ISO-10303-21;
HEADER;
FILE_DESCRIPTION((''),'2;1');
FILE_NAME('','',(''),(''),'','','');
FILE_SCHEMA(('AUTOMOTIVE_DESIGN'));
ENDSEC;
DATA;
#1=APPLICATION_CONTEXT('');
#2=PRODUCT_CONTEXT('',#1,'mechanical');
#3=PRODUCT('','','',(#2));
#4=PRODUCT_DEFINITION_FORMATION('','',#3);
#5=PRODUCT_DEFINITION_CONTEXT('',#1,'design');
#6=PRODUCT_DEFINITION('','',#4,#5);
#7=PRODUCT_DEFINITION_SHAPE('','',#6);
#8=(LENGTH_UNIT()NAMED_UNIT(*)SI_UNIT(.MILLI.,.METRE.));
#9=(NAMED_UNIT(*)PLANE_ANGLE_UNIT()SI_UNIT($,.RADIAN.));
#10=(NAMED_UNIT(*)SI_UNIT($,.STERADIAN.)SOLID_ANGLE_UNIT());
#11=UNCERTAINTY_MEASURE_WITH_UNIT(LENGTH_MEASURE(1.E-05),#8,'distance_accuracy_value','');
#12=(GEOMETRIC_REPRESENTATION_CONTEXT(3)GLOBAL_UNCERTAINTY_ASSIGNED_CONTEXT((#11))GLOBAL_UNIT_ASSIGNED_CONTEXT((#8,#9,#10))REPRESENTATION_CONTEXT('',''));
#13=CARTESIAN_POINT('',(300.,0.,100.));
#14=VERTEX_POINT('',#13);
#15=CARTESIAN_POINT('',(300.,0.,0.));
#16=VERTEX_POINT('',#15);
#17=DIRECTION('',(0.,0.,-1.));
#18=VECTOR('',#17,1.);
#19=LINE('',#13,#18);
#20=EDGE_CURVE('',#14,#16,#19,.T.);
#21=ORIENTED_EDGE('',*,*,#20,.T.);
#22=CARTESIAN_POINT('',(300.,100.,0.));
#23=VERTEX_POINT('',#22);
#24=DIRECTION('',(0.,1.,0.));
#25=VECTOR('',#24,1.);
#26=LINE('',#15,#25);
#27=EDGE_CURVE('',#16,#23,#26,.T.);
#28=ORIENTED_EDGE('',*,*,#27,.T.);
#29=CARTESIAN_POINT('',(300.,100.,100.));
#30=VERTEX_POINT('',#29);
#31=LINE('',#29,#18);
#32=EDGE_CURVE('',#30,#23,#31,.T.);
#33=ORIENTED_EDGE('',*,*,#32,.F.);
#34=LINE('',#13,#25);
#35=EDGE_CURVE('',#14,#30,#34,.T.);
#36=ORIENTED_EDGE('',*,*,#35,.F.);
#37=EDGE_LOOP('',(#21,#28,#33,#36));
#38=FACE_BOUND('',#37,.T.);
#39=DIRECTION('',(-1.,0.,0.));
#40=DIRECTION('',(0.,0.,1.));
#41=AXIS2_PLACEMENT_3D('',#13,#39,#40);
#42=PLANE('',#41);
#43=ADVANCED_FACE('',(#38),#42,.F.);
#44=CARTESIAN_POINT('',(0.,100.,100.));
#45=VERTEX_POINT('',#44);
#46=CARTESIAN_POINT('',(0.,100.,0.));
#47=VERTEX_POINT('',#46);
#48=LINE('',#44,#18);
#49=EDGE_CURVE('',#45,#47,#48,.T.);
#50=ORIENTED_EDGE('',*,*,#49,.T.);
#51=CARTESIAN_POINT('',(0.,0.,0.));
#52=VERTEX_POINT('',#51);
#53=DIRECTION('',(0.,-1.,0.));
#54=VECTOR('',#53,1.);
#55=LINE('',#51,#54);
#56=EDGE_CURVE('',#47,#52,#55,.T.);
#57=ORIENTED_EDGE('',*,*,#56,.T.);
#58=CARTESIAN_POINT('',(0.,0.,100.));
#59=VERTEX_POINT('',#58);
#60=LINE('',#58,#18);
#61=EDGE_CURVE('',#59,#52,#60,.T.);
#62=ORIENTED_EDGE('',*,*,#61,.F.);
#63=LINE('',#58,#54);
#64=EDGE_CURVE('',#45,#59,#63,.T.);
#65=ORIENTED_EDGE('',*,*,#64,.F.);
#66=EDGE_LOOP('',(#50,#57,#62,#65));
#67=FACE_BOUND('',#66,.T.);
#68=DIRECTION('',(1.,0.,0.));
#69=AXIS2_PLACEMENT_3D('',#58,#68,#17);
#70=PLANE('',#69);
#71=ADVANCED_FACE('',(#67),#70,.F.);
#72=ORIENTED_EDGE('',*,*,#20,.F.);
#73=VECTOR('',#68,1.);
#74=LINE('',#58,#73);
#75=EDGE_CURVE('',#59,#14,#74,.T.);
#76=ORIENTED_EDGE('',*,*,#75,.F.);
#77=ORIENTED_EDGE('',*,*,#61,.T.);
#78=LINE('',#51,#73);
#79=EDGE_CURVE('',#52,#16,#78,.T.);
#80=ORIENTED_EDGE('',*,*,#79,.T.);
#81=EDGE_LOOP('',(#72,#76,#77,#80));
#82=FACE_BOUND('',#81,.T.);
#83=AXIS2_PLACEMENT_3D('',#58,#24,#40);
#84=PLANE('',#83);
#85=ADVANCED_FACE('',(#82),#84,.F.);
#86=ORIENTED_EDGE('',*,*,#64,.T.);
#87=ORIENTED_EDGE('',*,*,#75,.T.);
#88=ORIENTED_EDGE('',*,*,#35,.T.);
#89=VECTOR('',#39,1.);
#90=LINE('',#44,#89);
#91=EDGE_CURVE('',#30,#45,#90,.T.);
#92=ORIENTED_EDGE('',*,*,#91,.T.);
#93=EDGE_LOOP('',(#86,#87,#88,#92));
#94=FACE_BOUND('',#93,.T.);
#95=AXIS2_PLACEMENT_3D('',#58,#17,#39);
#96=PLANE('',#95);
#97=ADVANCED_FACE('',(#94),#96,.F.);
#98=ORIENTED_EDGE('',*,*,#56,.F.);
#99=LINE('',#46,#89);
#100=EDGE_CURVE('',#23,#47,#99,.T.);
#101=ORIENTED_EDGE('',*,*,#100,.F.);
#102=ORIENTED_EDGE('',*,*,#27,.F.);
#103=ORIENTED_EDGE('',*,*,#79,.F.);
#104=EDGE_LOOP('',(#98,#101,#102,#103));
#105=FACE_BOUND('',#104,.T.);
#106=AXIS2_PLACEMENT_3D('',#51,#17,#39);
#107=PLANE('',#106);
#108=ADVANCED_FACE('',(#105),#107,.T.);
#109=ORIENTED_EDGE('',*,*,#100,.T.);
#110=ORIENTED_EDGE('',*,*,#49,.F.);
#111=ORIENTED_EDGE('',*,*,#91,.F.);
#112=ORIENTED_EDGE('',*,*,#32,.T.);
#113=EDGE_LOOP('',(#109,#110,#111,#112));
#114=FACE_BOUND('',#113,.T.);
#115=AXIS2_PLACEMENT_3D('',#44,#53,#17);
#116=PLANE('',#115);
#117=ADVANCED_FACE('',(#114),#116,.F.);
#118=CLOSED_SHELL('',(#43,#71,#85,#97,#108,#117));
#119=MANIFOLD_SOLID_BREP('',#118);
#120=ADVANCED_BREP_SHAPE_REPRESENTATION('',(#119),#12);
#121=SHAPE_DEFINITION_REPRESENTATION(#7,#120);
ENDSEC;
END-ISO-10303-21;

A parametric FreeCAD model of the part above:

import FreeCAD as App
import Part
import Sketcher
from FreeCAD import Vector


def add_polygon(sketch, points):
    """Adds a closed chain of lines whose ends are joined by coincident constraints."""
    first, n = sketch.GeometryCount, len(points)
    for a, b in zip(points, points[1:] + points[:1]):
        sketch.addGeometry(Part.LineSegment(App.Vector(*a, 0), App.Vector(*b, 0)), False)
    for i in range(n):
        sketch.addConstraint(Sketcher.Constraint("Coincident", first + i, 2, first + (i + 1) % n, 1))

doc = App.newDocument("Part")
params = doc.addObject("Spreadsheet::Sheet", "Params")
for row, (alias, value) in enumerate([
    ("sketch1_width", "300 mm"),
    ("sketch1_height", "100 mm"),
    ("pad1_length", "100 mm"),
], start=1):
    params.set(f"A{row}", alias)
    params.set(f"B{row}", "=" + value)
    params.setAlias(f"B{row}", alias)

body = doc.addObject("PartDesign::Body", "Body")

# Sketch on XY plane
sketch1 = body.newObject("Sketcher::SketchObject", "Sketch")
sketch1.AttachmentSupport = (doc.getObject("XY_Plane"), [""])
sketch1.MapMode = "FlatFace"
add_polygon(sketch1, [(0, 100), (0, 0), (300, 0), (300, 100)])  # lines 0-3
sketch1.addConstraint([
    Sketcher.Constraint("Vertical", 0),
    Sketcher.Constraint("Horizontal", 1),
    Sketcher.Constraint("Vertical", 2),
    Sketcher.Constraint("Horizontal", 3),
    Sketcher.Constraint("Coincident", 0, 2, -1, 1),
    Sketcher.Constraint("DistanceX", 1, 1, 1, 2, 300.0),
    Sketcher.Constraint("DistanceY", 0, 2, 0, 1, 100.0),
])
sketch1.setExpression("Constraints[9]", "Params.sketch1_width")
sketch1.setExpression("Constraints[10]", "Params.sketch1_height")
pad1 = body.newObject("PartDesign::Pad", "Pad")
pad1.Profile = sketch1
pad1.setExpression("Length", "Params.pad1_length")

doc.recompute()
